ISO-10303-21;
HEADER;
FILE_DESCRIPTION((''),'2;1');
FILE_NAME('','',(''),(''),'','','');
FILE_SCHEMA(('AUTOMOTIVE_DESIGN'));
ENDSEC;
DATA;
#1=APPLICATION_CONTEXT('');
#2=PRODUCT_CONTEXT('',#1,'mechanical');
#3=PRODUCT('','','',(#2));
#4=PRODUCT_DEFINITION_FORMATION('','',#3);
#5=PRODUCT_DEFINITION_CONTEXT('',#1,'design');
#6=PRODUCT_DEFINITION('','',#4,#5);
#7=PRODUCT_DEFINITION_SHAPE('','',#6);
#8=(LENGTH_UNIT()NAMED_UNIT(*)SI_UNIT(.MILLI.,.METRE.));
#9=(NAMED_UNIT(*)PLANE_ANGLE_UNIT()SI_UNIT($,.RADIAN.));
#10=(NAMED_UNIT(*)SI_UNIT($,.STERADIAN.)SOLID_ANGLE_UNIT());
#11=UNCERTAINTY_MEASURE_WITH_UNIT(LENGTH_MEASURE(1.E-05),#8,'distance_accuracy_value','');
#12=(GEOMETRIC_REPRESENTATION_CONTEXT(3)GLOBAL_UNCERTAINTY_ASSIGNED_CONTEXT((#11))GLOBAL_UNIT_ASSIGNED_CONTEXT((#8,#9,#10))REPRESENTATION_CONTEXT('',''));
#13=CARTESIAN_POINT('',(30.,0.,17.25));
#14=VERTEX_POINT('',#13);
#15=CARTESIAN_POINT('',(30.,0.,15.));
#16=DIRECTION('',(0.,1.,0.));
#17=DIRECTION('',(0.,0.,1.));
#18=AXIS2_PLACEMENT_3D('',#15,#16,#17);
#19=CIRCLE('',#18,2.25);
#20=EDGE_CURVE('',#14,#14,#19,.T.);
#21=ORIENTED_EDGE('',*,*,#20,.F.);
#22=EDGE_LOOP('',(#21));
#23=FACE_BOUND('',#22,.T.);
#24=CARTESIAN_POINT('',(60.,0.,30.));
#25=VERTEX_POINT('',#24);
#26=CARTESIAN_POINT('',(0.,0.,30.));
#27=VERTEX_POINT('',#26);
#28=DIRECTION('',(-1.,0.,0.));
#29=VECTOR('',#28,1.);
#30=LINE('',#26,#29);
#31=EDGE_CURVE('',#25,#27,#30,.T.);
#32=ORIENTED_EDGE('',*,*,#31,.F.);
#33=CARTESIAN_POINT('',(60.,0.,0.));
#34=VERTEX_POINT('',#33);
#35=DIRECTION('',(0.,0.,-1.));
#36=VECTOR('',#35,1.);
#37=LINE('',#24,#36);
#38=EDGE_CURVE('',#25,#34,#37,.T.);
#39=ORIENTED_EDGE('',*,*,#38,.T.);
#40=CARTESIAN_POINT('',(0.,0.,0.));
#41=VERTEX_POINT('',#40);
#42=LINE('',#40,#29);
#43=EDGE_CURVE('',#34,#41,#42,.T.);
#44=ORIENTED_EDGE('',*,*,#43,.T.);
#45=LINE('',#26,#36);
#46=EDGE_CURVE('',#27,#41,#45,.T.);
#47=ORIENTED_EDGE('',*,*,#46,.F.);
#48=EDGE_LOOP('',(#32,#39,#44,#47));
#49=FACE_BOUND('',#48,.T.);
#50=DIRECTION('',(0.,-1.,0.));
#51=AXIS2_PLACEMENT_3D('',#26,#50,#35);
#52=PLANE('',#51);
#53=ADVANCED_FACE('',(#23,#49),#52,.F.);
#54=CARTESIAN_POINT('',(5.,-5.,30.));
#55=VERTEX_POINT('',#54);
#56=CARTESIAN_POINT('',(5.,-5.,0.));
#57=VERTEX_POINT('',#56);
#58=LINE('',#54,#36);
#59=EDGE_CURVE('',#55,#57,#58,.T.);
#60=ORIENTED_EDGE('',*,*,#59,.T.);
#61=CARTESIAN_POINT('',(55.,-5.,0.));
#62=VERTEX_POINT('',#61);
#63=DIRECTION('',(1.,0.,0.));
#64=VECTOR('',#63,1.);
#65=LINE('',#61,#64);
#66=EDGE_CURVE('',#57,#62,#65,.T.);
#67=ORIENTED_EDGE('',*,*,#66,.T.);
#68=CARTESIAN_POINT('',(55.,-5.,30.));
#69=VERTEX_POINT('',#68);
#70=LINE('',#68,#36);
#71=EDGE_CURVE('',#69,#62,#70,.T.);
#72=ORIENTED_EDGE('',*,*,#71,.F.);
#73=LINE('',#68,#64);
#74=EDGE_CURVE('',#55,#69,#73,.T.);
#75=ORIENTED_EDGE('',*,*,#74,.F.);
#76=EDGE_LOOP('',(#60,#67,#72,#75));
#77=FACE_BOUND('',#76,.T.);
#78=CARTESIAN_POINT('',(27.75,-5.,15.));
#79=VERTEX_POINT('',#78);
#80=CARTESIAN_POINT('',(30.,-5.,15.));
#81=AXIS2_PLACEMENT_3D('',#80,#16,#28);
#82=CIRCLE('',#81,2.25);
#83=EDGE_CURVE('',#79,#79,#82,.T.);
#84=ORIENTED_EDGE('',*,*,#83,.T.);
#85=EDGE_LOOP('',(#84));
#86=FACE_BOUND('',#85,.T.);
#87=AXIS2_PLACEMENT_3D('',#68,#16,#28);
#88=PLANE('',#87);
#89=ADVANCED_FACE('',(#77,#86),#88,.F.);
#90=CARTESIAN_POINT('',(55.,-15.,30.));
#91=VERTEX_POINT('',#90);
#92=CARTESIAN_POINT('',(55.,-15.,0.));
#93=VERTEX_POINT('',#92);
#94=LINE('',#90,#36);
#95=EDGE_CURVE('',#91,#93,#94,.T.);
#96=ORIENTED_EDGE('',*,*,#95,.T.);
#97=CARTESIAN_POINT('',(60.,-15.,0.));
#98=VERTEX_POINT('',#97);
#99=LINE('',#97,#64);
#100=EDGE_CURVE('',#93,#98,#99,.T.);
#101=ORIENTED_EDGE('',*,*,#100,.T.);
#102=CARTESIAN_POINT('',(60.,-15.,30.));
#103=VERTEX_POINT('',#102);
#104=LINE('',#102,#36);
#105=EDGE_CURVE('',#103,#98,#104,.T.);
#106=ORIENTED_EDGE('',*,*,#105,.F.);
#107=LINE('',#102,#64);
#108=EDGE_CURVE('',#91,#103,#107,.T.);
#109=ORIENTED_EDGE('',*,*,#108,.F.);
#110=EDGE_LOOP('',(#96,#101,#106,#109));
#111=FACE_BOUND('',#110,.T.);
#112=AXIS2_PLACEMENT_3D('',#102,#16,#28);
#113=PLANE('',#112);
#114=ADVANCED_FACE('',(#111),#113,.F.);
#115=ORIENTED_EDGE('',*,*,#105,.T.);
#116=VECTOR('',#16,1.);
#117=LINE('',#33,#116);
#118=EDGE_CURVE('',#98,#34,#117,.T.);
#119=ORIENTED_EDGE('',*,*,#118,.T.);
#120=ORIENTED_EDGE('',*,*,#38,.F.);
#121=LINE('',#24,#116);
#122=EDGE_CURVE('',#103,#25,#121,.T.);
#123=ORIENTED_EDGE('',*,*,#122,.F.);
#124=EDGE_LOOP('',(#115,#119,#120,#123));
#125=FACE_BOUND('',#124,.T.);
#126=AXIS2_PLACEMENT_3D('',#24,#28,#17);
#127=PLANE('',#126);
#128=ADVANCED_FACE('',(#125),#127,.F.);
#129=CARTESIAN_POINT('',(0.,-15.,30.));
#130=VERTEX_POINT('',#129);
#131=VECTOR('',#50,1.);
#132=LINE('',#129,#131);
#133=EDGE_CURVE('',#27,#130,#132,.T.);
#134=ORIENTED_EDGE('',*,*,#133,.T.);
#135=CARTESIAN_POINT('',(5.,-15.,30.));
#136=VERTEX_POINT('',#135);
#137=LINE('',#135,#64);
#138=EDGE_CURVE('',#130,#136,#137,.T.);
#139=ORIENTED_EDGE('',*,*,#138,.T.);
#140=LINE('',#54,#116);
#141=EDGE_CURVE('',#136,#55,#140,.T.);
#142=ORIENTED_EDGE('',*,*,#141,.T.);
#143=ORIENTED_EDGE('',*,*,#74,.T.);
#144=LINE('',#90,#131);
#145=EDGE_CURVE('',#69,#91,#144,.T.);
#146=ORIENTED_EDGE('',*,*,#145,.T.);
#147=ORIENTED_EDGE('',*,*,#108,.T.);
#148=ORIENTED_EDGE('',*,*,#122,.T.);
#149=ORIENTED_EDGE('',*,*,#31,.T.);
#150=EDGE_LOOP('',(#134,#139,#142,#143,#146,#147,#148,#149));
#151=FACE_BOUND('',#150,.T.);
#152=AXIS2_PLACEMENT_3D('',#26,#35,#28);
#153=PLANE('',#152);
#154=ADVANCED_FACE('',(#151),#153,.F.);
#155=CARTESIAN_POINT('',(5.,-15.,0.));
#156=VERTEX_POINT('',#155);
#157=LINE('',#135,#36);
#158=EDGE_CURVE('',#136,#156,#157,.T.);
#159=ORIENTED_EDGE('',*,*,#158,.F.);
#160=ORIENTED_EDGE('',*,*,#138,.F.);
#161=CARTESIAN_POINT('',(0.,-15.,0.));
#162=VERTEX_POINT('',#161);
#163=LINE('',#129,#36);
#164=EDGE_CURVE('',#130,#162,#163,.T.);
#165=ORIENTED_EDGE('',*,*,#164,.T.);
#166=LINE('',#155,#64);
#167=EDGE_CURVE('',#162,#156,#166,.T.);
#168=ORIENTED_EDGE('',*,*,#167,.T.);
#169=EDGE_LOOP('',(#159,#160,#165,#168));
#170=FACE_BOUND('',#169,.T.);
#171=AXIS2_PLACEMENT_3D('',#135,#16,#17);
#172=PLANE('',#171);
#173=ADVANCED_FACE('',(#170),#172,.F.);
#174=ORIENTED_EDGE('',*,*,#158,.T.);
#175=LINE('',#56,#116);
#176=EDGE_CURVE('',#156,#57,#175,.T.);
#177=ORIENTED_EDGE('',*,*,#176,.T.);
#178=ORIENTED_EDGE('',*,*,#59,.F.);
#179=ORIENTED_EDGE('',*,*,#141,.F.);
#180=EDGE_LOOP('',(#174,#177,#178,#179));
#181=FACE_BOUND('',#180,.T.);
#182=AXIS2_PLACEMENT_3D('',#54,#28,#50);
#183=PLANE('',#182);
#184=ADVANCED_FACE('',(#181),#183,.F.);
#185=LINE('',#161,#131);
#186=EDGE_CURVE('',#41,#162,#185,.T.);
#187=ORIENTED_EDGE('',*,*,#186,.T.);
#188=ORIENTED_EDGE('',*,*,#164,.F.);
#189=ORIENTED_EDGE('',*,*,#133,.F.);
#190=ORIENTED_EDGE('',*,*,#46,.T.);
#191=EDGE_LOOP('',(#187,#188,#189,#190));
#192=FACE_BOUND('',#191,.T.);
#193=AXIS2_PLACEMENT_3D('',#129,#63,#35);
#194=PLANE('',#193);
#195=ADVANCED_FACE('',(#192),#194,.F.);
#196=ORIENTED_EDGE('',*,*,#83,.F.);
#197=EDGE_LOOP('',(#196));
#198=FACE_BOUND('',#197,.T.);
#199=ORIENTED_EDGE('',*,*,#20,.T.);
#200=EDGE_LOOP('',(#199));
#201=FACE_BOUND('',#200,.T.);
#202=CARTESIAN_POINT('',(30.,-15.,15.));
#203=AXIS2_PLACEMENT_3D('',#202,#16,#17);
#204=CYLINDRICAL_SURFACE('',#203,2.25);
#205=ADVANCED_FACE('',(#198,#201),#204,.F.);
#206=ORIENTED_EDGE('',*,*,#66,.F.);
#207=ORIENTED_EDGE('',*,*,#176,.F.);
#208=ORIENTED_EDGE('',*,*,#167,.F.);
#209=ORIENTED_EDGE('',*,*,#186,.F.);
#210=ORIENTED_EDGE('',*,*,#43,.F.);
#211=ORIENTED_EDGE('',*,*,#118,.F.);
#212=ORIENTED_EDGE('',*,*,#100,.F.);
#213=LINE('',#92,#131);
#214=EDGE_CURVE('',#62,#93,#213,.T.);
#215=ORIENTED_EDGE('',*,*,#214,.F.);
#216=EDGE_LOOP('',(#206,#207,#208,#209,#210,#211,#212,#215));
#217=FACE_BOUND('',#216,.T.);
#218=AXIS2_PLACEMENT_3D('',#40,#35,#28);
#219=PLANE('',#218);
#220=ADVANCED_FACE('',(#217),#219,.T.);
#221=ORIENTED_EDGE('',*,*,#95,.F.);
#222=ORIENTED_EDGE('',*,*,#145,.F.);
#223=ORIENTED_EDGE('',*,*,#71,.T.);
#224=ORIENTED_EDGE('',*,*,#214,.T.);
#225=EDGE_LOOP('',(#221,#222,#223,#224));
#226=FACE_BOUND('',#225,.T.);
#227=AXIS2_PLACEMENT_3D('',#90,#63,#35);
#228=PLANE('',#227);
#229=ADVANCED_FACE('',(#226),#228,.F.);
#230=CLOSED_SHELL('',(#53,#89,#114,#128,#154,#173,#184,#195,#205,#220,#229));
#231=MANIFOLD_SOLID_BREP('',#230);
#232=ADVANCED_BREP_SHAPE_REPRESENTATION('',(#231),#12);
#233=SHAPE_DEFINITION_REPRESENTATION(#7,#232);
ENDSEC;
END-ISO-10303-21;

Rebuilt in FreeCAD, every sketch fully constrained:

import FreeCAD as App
import Part
import Sketcher

V = App.Vector


def add_polygon(sketch, points):
    """Adds a closed chain of lines whose ends are joined by coincident constraints."""
    first, n = sketch.GeometryCount, len(points)
    for a, b in zip(points, points[1:] + points[:1]):
        sketch.addGeometry(Part.LineSegment(App.Vector(*a, 0), App.Vector(*b, 0)), False)
    for i in range(n):
        sketch.addConstraint(Sketcher.Constraint("Coincident", first + i, 2, first + (i + 1) % n, 1))

doc = App.newDocument("Part")
params = doc.addObject("Spreadsheet::Sheet", "Params")
for row, (alias, value) in enumerate([
    ("sketch1_width", "60 mm"),
    ("sketch1_width2", "5 mm"),
    ("sketch1_height", "15 mm"),
    ("sketch1_height2", "10 mm"),
    ("pad1_length", "30 mm"),
    ("sketch2_diameter", "4.5 mm"),
], start=1):
    params.set(f"A{row}", alias)
    params.set(f"B{row}", "=" + value)
    params.setAlias(f"B{row}", alias)

body = doc.addObject("PartDesign::Body", "Body")

# Sketch on XY plane
sketch1 = body.newObject("Sketcher::SketchObject", "Sketch")
sketch1.AttachmentSupport = (doc.getObject("XY_Plane"), [""])
sketch1.MapMode = "FlatFace"
add_polygon(sketch1, [(60, 0), (0, 0), (0, -15), (5, -15), (5, -5), (55, -5), (55, -15), (60, -15)])  # lines 0-7
sketch1.addConstraint(Sketcher.Constraint("Horizontal", 0))
sketch1.addConstraint(Sketcher.Constraint("Vertical", 1))
sketch1.addConstraint(Sketcher.Constraint("Horizontal", 2))
sketch1.addConstraint(Sketcher.Constraint("Vertical", 3))
sketch1.addConstraint(Sketcher.Constraint("Horizontal", 4))
sketch1.addConstraint(Sketcher.Constraint("Vertical", 5))
sketch1.addConstraint(Sketcher.Constraint("Horizontal", 6))
sketch1.addConstraint(Sketcher.Constraint("Vertical", 7))
sketch1.addConstraint(Sketcher.Constraint("Coincident", 0, 2, -1, 1))
sketch1.addConstraint(Sketcher.Constraint("Horizontal", 2, 2, 5, 2))
sketch1.addConstraint(Sketcher.Constraint("Equal", 2, 6))
sketch1.addConstraint(Sketcher.Constraint("DistanceX", 0, 2, 0, 1, 60.0))
sketch1.addConstraint(Sketcher.Constraint("DistanceX", 2, 1, 2, 2, 5.0))
sketch1.addConstraint(Sketcher.Constraint("DistanceY", 1, 2, 1, 1, 15.0))
sketch1.addConstraint(Sketcher.Constraint("DistanceY", 3, 1, 3, 2, 10.0))
sketch1.setExpression("Constraints[19]", "Params.sketch1_width")
sketch1.setExpression("Constraints[20]", "Params.sketch1_width2")
sketch1.setExpression("Constraints[21]", "Params.sketch1_height")
sketch1.setExpression("Constraints[22]", "Params.sketch1_height2")
pad1 = body.newObject("PartDesign::Pad", "Pad")
pad1.Profile = sketch1
pad1.setExpression("Length", "Params.pad1_length")

# Sketch on XZ plane
sketch2 = body.newObject("Sketcher::SketchObject", "Sketch001")
sketch2.AttachmentSupport = (doc.getObject("XZ_Plane"), [""])
sketch2.MapMode = "FlatFace"
sketch2.addGeometry(Part.Circle(V(30, 15, 0), V(0, 0, 1), 2.25), False)
sketch2.addConstraint(Sketcher.Constraint("Diameter", 0, 4.5))
sketch2.addConstraint(Sketcher.Constraint("DistanceX", -1, 1, 0, 3, 30.0))
sketch2.addConstraint(Sketcher.Constraint("DistanceY", -1, 1, 0, 3, 15.0))
sketch2.setExpression("Constraints[0]", "Params.sketch2_diameter")
pocket1 = body.newObject("PartDesign::Pocket", "Pocket")
pocket1.Profile = sketch2
pocket1.Type = "ThroughAll"
pocket1.Reversed = True

doc.recompute()
